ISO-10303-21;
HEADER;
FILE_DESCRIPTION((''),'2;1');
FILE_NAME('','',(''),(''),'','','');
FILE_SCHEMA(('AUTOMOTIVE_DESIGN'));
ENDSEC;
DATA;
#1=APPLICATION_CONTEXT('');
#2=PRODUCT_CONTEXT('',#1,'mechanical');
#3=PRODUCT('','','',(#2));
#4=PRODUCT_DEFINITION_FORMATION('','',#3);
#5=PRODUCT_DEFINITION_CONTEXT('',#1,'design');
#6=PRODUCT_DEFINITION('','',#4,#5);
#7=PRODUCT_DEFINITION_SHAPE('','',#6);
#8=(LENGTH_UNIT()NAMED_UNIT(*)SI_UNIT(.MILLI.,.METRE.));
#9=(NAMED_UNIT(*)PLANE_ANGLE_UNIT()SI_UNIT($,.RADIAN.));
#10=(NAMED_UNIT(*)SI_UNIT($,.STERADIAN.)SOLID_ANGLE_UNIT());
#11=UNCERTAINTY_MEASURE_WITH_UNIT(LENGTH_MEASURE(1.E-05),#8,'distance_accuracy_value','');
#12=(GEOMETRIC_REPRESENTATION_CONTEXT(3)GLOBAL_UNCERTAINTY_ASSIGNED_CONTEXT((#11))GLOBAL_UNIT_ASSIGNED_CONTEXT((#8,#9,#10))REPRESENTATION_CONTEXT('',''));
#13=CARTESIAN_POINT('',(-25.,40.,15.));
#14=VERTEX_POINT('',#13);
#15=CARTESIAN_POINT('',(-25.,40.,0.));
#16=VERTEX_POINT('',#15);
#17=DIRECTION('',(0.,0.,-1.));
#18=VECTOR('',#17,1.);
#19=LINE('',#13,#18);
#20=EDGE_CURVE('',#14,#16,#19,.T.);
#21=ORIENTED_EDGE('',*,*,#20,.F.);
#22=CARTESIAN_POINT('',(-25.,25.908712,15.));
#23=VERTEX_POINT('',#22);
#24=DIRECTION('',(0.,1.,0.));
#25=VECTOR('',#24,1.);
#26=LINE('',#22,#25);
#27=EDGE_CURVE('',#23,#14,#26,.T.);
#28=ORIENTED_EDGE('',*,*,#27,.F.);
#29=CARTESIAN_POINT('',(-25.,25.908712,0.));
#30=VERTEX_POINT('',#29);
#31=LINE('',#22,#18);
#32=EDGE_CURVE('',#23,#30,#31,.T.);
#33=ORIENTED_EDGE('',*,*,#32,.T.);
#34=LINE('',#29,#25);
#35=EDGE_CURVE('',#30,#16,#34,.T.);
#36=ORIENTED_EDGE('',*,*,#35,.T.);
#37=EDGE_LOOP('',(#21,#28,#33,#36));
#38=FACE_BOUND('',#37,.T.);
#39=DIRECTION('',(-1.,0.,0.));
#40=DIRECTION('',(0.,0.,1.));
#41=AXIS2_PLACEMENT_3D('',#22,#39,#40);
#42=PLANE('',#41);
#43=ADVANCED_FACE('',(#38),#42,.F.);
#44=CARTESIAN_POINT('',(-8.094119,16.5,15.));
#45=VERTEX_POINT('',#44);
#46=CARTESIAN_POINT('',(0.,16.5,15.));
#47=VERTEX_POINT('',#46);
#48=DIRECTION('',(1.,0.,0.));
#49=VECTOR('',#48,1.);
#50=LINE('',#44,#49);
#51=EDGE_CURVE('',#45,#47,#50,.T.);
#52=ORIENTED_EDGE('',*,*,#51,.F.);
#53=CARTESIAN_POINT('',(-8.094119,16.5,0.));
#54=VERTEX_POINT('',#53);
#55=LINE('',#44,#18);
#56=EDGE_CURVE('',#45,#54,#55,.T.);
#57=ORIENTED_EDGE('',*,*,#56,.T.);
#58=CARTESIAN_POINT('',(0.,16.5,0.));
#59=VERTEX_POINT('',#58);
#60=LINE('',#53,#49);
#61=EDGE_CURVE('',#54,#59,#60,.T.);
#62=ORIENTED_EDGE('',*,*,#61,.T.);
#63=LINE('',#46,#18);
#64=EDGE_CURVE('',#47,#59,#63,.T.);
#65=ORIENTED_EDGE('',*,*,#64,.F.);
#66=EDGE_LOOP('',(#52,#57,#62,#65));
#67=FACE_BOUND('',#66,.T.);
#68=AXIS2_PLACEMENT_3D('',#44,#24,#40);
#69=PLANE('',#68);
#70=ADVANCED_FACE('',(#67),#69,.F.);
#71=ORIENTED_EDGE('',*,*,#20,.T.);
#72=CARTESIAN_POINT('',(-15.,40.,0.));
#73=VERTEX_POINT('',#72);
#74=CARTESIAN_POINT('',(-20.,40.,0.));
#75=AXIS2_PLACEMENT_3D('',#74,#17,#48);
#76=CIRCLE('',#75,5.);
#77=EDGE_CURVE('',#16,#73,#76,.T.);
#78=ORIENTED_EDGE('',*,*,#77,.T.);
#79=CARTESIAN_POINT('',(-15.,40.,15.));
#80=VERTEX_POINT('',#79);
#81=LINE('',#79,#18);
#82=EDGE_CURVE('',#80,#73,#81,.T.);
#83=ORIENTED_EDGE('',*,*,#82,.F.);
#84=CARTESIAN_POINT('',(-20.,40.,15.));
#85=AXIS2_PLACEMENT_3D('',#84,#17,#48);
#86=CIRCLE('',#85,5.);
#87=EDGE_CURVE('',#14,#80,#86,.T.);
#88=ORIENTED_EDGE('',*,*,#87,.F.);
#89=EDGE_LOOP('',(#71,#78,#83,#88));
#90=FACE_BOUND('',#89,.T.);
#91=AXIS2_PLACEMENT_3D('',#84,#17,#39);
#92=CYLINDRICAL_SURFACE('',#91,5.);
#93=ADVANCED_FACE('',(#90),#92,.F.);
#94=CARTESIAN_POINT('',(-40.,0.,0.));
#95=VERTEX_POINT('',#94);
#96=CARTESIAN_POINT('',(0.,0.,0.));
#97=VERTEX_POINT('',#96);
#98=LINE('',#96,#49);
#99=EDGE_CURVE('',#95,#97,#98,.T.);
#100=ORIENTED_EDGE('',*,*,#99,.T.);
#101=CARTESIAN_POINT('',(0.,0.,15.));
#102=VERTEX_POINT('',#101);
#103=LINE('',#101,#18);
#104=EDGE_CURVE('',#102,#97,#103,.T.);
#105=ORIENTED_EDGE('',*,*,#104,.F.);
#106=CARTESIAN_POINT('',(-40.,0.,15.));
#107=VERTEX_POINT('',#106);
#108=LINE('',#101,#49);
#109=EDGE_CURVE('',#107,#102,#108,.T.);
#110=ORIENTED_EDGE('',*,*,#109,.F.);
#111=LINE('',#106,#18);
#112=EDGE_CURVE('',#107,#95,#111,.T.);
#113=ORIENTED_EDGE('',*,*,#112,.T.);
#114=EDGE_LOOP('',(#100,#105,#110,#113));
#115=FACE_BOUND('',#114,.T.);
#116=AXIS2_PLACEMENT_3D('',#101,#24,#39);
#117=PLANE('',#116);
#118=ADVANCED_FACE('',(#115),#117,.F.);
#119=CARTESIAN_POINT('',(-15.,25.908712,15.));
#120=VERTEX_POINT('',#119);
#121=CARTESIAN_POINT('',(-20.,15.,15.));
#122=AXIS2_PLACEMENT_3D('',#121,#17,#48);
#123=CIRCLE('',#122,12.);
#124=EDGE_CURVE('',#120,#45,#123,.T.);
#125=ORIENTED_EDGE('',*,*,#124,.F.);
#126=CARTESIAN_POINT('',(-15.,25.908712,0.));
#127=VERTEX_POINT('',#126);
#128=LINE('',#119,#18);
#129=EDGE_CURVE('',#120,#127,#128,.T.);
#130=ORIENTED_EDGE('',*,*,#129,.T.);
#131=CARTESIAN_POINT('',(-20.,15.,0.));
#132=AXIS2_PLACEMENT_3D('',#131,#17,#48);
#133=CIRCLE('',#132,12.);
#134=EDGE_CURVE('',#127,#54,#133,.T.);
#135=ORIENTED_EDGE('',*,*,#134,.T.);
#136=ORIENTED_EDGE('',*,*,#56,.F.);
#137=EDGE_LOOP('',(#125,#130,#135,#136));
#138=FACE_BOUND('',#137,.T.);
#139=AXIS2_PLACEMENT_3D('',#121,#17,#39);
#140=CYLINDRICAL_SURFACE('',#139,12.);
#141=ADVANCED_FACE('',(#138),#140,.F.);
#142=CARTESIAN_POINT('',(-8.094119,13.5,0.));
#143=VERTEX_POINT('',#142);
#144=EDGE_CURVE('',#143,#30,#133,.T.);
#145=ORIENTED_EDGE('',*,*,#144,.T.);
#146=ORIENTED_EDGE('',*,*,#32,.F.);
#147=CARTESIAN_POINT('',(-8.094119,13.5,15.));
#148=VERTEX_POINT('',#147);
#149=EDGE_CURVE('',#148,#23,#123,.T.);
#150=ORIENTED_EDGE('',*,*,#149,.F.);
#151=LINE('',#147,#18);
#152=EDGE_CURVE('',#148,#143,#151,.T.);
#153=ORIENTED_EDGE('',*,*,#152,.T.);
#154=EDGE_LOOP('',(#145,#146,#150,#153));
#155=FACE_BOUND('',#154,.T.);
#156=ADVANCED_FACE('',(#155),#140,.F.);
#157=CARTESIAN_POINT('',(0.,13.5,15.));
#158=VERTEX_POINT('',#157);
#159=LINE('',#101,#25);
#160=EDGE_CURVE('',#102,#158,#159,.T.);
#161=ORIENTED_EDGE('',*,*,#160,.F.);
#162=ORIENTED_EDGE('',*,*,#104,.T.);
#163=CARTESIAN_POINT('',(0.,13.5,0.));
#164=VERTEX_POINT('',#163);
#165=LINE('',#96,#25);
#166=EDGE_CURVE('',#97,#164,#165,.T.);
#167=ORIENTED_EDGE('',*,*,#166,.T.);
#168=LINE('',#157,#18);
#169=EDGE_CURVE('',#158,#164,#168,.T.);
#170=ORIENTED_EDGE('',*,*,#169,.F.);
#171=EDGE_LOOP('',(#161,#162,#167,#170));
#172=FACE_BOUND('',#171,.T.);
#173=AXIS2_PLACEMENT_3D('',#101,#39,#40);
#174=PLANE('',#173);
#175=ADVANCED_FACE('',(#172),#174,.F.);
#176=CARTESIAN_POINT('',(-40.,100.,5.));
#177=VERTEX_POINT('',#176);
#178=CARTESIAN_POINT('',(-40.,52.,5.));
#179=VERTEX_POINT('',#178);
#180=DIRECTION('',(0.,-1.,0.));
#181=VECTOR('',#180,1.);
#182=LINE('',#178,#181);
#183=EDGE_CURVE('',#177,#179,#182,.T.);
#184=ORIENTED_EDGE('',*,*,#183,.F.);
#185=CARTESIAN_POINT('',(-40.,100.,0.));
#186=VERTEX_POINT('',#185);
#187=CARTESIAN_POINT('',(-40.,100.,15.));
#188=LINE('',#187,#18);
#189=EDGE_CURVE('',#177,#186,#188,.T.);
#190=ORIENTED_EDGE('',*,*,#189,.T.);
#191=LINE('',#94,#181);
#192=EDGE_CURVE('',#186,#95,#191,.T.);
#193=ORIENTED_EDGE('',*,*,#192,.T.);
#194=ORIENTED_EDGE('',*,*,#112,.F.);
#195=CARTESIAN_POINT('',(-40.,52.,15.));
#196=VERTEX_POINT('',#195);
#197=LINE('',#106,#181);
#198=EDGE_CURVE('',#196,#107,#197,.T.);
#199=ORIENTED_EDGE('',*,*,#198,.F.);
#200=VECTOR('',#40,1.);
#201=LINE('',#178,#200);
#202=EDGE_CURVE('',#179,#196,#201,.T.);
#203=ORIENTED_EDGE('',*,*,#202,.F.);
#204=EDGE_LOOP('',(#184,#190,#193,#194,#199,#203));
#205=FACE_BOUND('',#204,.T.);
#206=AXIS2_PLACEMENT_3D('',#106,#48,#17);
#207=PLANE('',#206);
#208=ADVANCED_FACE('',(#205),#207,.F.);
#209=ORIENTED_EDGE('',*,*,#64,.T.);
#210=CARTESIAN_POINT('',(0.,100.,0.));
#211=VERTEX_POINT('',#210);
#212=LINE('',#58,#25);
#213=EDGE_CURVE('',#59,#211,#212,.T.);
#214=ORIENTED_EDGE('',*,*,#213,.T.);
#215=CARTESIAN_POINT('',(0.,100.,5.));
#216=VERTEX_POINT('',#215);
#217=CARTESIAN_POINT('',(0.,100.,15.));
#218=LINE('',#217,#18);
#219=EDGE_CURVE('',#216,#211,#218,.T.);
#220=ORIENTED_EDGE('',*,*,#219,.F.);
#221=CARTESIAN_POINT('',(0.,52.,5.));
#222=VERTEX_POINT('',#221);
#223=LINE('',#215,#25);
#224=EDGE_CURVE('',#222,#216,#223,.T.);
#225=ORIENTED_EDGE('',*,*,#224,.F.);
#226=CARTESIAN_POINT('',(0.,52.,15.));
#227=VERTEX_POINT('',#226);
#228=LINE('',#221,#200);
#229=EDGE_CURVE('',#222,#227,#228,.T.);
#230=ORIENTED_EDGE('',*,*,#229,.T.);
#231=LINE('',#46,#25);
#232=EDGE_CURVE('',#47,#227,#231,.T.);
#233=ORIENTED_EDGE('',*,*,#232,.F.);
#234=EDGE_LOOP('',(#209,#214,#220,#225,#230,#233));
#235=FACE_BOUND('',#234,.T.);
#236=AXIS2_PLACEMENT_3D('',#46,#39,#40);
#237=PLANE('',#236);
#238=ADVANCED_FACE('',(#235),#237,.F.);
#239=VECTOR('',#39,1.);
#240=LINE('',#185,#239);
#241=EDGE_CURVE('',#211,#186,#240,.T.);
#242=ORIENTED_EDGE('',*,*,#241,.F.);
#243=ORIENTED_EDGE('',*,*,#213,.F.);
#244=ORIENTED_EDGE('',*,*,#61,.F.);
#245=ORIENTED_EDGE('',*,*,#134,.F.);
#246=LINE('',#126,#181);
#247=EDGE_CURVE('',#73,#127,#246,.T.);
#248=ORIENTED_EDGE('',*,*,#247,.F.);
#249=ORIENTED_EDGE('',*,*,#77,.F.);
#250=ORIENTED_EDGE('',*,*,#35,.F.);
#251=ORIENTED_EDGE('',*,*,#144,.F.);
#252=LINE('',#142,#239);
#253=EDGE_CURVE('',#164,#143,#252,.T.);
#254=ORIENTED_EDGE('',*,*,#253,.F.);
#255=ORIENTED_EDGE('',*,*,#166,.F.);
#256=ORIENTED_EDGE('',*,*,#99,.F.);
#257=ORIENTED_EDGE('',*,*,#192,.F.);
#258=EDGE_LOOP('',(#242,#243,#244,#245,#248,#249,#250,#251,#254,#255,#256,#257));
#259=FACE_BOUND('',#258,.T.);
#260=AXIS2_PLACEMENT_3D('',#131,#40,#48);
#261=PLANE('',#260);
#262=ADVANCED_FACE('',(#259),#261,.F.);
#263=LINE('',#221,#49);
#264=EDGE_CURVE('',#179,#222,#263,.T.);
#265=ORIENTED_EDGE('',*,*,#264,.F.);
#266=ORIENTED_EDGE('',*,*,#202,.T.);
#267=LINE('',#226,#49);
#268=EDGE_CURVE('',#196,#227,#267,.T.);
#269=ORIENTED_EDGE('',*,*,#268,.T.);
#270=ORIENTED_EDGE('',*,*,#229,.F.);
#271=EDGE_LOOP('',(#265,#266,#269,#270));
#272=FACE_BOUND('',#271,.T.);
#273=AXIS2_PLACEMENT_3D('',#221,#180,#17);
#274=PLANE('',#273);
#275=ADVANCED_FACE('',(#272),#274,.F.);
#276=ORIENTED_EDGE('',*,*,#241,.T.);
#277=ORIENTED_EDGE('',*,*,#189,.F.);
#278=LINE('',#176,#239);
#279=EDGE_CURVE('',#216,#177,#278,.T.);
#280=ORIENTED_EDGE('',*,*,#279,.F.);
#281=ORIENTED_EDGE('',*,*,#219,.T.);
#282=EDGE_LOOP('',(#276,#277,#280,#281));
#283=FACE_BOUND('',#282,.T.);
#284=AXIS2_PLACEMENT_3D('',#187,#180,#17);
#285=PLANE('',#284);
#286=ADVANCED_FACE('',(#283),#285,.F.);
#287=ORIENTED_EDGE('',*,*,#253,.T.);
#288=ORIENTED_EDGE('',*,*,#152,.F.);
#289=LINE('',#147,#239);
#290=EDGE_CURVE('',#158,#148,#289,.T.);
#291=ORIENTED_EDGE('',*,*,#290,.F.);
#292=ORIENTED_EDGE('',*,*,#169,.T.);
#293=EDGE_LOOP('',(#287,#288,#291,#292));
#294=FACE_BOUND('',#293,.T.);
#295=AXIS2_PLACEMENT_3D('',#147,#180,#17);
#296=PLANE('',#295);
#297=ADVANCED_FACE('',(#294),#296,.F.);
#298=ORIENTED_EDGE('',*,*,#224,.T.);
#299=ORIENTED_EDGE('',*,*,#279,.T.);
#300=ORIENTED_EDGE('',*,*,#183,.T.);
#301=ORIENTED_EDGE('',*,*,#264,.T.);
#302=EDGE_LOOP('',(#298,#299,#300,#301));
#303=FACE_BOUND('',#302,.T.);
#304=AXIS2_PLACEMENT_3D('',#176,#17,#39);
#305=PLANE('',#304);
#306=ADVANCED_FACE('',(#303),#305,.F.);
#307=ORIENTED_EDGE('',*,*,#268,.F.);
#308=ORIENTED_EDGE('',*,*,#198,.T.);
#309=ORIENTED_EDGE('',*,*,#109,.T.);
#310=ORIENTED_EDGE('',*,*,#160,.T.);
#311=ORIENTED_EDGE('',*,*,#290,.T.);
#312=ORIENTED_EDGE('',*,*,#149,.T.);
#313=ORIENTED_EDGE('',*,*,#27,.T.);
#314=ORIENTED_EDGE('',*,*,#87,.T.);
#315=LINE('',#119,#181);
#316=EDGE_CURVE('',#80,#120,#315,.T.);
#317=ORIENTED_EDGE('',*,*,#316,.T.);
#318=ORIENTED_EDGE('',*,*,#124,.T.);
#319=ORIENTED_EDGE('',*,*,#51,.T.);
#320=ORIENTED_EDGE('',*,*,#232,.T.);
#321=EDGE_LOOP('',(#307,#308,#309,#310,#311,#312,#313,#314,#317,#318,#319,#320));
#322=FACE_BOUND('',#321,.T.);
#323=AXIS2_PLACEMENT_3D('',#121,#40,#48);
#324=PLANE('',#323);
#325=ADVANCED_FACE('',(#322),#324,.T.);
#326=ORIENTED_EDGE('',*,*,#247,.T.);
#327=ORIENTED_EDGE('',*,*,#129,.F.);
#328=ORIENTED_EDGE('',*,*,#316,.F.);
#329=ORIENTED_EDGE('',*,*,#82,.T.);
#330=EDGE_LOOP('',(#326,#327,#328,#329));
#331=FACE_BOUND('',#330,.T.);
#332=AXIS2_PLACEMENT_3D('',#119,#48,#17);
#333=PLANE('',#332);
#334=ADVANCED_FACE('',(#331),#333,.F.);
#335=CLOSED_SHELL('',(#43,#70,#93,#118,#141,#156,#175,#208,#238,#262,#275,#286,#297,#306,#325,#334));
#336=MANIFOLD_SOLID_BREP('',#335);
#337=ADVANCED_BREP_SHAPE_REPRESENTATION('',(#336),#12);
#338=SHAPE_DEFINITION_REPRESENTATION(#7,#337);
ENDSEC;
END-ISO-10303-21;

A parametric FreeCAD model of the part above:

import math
import FreeCAD as App
import Part
import Sketcher

V = App.Vector
Q = App.Units.Quantity

doc = App.newDocument("Part")
body = doc.addObject("PartDesign::Body", "Body")

# Sketch on XY plane
sketch1 = doc.addObject("Sketcher::SketchObject", "Sketch")
body.addObject(sketch1)
sketch1.AttachmentSupport = (doc.XY_Plane, [""])
sketch1.MapMode = "FlatFace"
sketch1.addGeometry(Part.LineSegment(V(-40, 0, 0), V(0, 0, 0)), False)
sketch1.addGeometry(Part.LineSegment(V(0, 0, 0), V(0, 14, 0)), False)
sketch1.addGeometry(Part.LineSegment(V(0, 14, 0), V(-8, 14, 0)), False)
sketch1.addGeometry(Part.ArcOfCircle(Part.Circle(V(-20, 15, 0), V(0, 0, 1), 12), math.radians(115), math.radians(353)), False)
sketch1.addGeometry(Part.LineSegment(V(-25, 26, 0), V(-25, 40, 0)), False)
sketch1.addGeometry(Part.ArcOfCircle(Part.Circle(V(-20, 40, 0), V(0, 0, 1), 5), math.radians(0), math.radians(180)), False)
sketch1.addGeometry(Part.LineSegment(V(-15, 40, 0), V(-15, 26, 0)), False)
sketch1.addGeometry(Part.ArcOfCircle(Part.Circle(V(-20, 15, 0), V(0, 0, 1), 12), math.radians(7), math.radians(65)), False)
sketch1.addGeometry(Part.LineSegment(V(-8, 16, 0), V(0, 16, 0)), False)
sketch1.addGeometry(Part.LineSegment(V(0, 16, 0), V(0, 100, 0)), False)
sketch1.addGeometry(Part.LineSegment(V(0, 100, 0), V(-40, 100, 0)), False)
sketch1.addGeometry(Part.LineSegment(V(-40, 100, 0), V(-40, 0, 0)), False)
sketch1.addConstraint(Sketcher.Constraint("Coincident", 0, 2, 1, 1))
sketch1.addConstraint(Sketcher.Constraint("Coincident", 1, 2, 2, 1))
sketch1.addConstraint(Sketcher.Constraint("Coincident", 2, 2, 3, 2))
sketch1.addConstraint(Sketcher.Constraint("Coincident", 3, 1, 4, 1))
sketch1.addConstraint(Sketcher.Constraint("Tangent", 4, 2, 5, 2))
sketch1.addConstraint(Sketcher.Constraint("Tangent", 5, 1, 6, 1))
sketch1.addConstraint(Sketcher.Constraint("Coincident", 6, 2, 7, 2))
sketch1.addConstraint(Sketcher.Constraint("Coincident", 7, 1, 8, 1))
sketch1.addConstraint(Sketcher.Constraint("Coincident", 8, 2, 9, 1))
sketch1.addConstraint(Sketcher.Constraint("Coincident", 9, 2, 10, 1))
sketch1.addConstraint(Sketcher.Constraint("Coincident", 10, 2, 11, 1))
sketch1.addConstraint(Sketcher.Constraint("Coincident", 11, 2, 0, 1))
sketch1.addConstraint(Sketcher.Constraint("Horizontal", 0))
sketch1.addConstraint(Sketcher.Constraint("Vertical", 1))
sketch1.addConstraint(Sketcher.Constraint("Horizontal", 2))
sketch1.addConstraint(Sketcher.Constraint("Vertical", 4))
sketch1.addConstraint(Sketcher.Constraint("Vertical", 6))
sketch1.addConstraint(Sketcher.Constraint("Horizontal", 8))
sketch1.addConstraint(Sketcher.Constraint("Vertical", 9))
sketch1.addConstraint(Sketcher.Constraint("Horizontal", 10))
sketch1.addConstraint(Sketcher.Constraint("Vertical", 11))
sketch1.addConstraint(Sketcher.Constraint("Coincident", 0, 2, -1, 1))
sketch1.addConstraint(Sketcher.Constraint("Coincident", 7, 3, 3, 3))
sketch1.addConstraint(Sketcher.Constraint("Equal", 3, 7))
sketch1.addConstraint(Sketcher.Constraint("PointOnObject", 8, 2, -2))
sketch1.addConstraint(Sketcher.Constraint("Horizontal", 3, 1, 6, 2))
sketch1.addConstraint(Sketcher.Constraint("Vertical", 2, 2, 7, 1))
sketch1.addConstraint(Sketcher.Constraint("Radius", 3, Q("12 mm")))
sketch1.addConstraint(Sketcher.Constraint("Radius", 5, Q("5 mm")))
sketch1.addConstraint(Sketcher.Constraint("DistanceX", 0, 1, 0, 2, Q("40 mm")))
sketch1.addConstraint(Sketcher.Constraint("DistanceY", 11, 2, 11, 1, Q("100 mm")))
sketch1.addConstraint(Sketcher.Constraint("DistanceY", 1, 1, 1, 2, Q("13.5 mm")))
sketch1.addConstraint(Sketcher.Constraint("DistanceY", 9, 1, 9, 2, Q("83.5 mm")))
sketch1.addConstraint(Sketcher.Constraint("DistanceX", 3, 3, -1, 1, Q("20 mm")))
sketch1.addConstraint(Sketcher.Constraint("DistanceY", -1, 1, 5, 3, Q("40 mm")))
pad1 = doc.addObject("PartDesign::Pad", "Pad")
body.addObject(pad1)
pad1.Profile = sketch1
pad1.Length = 15

# Sketch on XY plane
sketch2 = doc.addObject("Sketcher::SketchObject", "Sketch001")
body.addObject(sketch2)
sketch2.AttachmentSupport = (doc.XY_Plane, [""])
sketch2.MapMode = "FlatFace"
sketch2.AttachmentOffset = App.Placement(V(0, 0, 15), App.Rotation())
sketch2.addGeometry(Part.LineSegment(V(-40, 100, 0), V(-40, 52, 0)), False)
sketch2.addGeometry(Part.LineSegment(V(-40, 52, 0), V(0, 52, 0)), False)
sketch2.addGeometry(Part.LineSegment(V(0, 52, 0), V(0, 100, 0)), False)
sketch2.addGeometry(Part.LineSegment(V(0, 100, 0), V(-40, 100, 0)), False)
sketch2.addConstraint(Sketcher.Constraint("Coincident", 0, 2, 1, 1))
sketch2.addConstraint(Sketcher.Constraint("Coincident", 1, 2, 2, 1))
sketch2.addConstraint(Sketcher.Constraint("Coincident", 2, 2, 3, 1))
sketch2.addConstraint(Sketcher.Constraint("Coincident", 3, 2, 0, 1))
sketch2.addConstraint(Sketcher.Constraint("Vertical", 0))
sketch2.addConstraint(Sketcher.Constraint("Horizontal", 1))
sketch2.addConstraint(Sketcher.Constraint("Vertical", 2))
sketch2.addConstraint(Sketcher.Constraint("Horizontal", 3))
sketch2.addConstraint(Sketcher.Constraint("PointOnObject", 1, 2, -2))
sketch2.addConstraint(Sketcher.Constraint("DistanceX", 1, 1, 1, 2, Q("40 mm")))
sketch2.addConstraint(Sketcher.Constraint("DistanceY", 0, 2, 0, 1, Q("48 mm")))
sketch2.addConstraint(Sketcher.Constraint("DistanceY", -1, 1, 0, 2, Q("52 mm")))
pocket1 = doc.addObject("PartDesign::Pocket", "Pocket")
body.addObject(pocket1)
pocket1.Profile = sketch2
pocket1.Length = 10

doc.recompute()
